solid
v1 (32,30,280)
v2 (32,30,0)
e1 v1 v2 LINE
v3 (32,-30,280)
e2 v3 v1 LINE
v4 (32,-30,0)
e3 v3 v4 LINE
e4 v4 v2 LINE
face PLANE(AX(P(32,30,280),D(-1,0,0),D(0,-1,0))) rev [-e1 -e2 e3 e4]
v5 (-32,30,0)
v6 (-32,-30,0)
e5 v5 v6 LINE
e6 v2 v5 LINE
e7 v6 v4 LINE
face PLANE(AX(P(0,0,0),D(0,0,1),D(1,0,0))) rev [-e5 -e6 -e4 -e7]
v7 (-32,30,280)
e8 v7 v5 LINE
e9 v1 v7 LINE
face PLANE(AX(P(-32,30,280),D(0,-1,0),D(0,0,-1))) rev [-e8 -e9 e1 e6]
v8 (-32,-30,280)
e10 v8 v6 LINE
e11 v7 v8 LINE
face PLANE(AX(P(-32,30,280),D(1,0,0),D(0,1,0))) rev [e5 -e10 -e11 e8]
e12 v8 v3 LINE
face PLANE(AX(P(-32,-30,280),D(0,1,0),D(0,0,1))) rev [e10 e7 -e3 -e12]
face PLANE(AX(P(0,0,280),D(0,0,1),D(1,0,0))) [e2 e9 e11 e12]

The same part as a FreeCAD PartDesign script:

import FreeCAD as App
import Part
import Sketcher
from FreeCAD import Vector


def add_polygon(sketch, points):
    """Adds a closed chain of lines whose ends are joined by coincident constraints."""
    first, n = sketch.GeometryCount, len(points)
    for a, b in zip(points, points[1:] + points[:1]):
        sketch.addGeometry(Part.LineSegment(App.Vector(*a, 0), App.Vector(*b, 0)), False)
    for i in range(n):
        sketch.addConstraint(Sketcher.Constraint("Coincident", first + i, 2, first + (i + 1) % n, 1))

doc = App.newDocument("Part")
params = doc.addObject("Spreadsheet::Sheet", "Params")
for row, (alias, value) in enumerate([
    ("sketch1_width", "64 mm"),
    ("sketch1_height", "60 mm"),
    ("pad1_length", "280 mm"),
], start=1):
    params.set(f"A{row}", alias)
    params.set(f"B{row}", "=" + value)
    params.setAlias(f"B{row}", alias)

body = doc.addObject("PartDesign::Body", "Body")

sketch1 = body.newObject("Sketcher::SketchObject", "Sketch")
sketch1.AttachmentSupport = (doc.getObject("XY_Plane"), [""])
sketch1.MapMode = "FlatFace"
add_polygon(sketch1, [(-32, 30), (-32, -30), (32, -30), (32, 30)])
sketch1.addConstraint(Sketcher.Constraint("Vertical", 0))
sketch1.addConstraint(Sketcher.Constraint("Horizontal", 1))
sketch1.addConstraint(Sketcher.Constraint("Vertical", 2))
sketch1.addConstraint(Sketcher.Constraint("Horizontal", 3))
sketch1.addConstraint(Sketcher.Constraint("Symmetric", 0, 2, 2, 2, -1, 1))
sketch1.addConstraint(Sketcher.Constraint("DistanceX", 1, 1, 1, 2, 64.0))
sketch1.addConstraint(Sketcher.Constraint("DistanceY", 0, 2, 0, 1, 60.0))
sketch1.setExpression("Constraints[9]", "Params.sketch1_width")
sketch1.setExpression("Constraints[10]", "Params.sketch1_height")
pad1 = body.newObject("PartDesign::Pad", "Pad")
pad1.Profile = sketch1
pad1.setExpression("Length", "Params.pad1_length")

doc.recompute()
